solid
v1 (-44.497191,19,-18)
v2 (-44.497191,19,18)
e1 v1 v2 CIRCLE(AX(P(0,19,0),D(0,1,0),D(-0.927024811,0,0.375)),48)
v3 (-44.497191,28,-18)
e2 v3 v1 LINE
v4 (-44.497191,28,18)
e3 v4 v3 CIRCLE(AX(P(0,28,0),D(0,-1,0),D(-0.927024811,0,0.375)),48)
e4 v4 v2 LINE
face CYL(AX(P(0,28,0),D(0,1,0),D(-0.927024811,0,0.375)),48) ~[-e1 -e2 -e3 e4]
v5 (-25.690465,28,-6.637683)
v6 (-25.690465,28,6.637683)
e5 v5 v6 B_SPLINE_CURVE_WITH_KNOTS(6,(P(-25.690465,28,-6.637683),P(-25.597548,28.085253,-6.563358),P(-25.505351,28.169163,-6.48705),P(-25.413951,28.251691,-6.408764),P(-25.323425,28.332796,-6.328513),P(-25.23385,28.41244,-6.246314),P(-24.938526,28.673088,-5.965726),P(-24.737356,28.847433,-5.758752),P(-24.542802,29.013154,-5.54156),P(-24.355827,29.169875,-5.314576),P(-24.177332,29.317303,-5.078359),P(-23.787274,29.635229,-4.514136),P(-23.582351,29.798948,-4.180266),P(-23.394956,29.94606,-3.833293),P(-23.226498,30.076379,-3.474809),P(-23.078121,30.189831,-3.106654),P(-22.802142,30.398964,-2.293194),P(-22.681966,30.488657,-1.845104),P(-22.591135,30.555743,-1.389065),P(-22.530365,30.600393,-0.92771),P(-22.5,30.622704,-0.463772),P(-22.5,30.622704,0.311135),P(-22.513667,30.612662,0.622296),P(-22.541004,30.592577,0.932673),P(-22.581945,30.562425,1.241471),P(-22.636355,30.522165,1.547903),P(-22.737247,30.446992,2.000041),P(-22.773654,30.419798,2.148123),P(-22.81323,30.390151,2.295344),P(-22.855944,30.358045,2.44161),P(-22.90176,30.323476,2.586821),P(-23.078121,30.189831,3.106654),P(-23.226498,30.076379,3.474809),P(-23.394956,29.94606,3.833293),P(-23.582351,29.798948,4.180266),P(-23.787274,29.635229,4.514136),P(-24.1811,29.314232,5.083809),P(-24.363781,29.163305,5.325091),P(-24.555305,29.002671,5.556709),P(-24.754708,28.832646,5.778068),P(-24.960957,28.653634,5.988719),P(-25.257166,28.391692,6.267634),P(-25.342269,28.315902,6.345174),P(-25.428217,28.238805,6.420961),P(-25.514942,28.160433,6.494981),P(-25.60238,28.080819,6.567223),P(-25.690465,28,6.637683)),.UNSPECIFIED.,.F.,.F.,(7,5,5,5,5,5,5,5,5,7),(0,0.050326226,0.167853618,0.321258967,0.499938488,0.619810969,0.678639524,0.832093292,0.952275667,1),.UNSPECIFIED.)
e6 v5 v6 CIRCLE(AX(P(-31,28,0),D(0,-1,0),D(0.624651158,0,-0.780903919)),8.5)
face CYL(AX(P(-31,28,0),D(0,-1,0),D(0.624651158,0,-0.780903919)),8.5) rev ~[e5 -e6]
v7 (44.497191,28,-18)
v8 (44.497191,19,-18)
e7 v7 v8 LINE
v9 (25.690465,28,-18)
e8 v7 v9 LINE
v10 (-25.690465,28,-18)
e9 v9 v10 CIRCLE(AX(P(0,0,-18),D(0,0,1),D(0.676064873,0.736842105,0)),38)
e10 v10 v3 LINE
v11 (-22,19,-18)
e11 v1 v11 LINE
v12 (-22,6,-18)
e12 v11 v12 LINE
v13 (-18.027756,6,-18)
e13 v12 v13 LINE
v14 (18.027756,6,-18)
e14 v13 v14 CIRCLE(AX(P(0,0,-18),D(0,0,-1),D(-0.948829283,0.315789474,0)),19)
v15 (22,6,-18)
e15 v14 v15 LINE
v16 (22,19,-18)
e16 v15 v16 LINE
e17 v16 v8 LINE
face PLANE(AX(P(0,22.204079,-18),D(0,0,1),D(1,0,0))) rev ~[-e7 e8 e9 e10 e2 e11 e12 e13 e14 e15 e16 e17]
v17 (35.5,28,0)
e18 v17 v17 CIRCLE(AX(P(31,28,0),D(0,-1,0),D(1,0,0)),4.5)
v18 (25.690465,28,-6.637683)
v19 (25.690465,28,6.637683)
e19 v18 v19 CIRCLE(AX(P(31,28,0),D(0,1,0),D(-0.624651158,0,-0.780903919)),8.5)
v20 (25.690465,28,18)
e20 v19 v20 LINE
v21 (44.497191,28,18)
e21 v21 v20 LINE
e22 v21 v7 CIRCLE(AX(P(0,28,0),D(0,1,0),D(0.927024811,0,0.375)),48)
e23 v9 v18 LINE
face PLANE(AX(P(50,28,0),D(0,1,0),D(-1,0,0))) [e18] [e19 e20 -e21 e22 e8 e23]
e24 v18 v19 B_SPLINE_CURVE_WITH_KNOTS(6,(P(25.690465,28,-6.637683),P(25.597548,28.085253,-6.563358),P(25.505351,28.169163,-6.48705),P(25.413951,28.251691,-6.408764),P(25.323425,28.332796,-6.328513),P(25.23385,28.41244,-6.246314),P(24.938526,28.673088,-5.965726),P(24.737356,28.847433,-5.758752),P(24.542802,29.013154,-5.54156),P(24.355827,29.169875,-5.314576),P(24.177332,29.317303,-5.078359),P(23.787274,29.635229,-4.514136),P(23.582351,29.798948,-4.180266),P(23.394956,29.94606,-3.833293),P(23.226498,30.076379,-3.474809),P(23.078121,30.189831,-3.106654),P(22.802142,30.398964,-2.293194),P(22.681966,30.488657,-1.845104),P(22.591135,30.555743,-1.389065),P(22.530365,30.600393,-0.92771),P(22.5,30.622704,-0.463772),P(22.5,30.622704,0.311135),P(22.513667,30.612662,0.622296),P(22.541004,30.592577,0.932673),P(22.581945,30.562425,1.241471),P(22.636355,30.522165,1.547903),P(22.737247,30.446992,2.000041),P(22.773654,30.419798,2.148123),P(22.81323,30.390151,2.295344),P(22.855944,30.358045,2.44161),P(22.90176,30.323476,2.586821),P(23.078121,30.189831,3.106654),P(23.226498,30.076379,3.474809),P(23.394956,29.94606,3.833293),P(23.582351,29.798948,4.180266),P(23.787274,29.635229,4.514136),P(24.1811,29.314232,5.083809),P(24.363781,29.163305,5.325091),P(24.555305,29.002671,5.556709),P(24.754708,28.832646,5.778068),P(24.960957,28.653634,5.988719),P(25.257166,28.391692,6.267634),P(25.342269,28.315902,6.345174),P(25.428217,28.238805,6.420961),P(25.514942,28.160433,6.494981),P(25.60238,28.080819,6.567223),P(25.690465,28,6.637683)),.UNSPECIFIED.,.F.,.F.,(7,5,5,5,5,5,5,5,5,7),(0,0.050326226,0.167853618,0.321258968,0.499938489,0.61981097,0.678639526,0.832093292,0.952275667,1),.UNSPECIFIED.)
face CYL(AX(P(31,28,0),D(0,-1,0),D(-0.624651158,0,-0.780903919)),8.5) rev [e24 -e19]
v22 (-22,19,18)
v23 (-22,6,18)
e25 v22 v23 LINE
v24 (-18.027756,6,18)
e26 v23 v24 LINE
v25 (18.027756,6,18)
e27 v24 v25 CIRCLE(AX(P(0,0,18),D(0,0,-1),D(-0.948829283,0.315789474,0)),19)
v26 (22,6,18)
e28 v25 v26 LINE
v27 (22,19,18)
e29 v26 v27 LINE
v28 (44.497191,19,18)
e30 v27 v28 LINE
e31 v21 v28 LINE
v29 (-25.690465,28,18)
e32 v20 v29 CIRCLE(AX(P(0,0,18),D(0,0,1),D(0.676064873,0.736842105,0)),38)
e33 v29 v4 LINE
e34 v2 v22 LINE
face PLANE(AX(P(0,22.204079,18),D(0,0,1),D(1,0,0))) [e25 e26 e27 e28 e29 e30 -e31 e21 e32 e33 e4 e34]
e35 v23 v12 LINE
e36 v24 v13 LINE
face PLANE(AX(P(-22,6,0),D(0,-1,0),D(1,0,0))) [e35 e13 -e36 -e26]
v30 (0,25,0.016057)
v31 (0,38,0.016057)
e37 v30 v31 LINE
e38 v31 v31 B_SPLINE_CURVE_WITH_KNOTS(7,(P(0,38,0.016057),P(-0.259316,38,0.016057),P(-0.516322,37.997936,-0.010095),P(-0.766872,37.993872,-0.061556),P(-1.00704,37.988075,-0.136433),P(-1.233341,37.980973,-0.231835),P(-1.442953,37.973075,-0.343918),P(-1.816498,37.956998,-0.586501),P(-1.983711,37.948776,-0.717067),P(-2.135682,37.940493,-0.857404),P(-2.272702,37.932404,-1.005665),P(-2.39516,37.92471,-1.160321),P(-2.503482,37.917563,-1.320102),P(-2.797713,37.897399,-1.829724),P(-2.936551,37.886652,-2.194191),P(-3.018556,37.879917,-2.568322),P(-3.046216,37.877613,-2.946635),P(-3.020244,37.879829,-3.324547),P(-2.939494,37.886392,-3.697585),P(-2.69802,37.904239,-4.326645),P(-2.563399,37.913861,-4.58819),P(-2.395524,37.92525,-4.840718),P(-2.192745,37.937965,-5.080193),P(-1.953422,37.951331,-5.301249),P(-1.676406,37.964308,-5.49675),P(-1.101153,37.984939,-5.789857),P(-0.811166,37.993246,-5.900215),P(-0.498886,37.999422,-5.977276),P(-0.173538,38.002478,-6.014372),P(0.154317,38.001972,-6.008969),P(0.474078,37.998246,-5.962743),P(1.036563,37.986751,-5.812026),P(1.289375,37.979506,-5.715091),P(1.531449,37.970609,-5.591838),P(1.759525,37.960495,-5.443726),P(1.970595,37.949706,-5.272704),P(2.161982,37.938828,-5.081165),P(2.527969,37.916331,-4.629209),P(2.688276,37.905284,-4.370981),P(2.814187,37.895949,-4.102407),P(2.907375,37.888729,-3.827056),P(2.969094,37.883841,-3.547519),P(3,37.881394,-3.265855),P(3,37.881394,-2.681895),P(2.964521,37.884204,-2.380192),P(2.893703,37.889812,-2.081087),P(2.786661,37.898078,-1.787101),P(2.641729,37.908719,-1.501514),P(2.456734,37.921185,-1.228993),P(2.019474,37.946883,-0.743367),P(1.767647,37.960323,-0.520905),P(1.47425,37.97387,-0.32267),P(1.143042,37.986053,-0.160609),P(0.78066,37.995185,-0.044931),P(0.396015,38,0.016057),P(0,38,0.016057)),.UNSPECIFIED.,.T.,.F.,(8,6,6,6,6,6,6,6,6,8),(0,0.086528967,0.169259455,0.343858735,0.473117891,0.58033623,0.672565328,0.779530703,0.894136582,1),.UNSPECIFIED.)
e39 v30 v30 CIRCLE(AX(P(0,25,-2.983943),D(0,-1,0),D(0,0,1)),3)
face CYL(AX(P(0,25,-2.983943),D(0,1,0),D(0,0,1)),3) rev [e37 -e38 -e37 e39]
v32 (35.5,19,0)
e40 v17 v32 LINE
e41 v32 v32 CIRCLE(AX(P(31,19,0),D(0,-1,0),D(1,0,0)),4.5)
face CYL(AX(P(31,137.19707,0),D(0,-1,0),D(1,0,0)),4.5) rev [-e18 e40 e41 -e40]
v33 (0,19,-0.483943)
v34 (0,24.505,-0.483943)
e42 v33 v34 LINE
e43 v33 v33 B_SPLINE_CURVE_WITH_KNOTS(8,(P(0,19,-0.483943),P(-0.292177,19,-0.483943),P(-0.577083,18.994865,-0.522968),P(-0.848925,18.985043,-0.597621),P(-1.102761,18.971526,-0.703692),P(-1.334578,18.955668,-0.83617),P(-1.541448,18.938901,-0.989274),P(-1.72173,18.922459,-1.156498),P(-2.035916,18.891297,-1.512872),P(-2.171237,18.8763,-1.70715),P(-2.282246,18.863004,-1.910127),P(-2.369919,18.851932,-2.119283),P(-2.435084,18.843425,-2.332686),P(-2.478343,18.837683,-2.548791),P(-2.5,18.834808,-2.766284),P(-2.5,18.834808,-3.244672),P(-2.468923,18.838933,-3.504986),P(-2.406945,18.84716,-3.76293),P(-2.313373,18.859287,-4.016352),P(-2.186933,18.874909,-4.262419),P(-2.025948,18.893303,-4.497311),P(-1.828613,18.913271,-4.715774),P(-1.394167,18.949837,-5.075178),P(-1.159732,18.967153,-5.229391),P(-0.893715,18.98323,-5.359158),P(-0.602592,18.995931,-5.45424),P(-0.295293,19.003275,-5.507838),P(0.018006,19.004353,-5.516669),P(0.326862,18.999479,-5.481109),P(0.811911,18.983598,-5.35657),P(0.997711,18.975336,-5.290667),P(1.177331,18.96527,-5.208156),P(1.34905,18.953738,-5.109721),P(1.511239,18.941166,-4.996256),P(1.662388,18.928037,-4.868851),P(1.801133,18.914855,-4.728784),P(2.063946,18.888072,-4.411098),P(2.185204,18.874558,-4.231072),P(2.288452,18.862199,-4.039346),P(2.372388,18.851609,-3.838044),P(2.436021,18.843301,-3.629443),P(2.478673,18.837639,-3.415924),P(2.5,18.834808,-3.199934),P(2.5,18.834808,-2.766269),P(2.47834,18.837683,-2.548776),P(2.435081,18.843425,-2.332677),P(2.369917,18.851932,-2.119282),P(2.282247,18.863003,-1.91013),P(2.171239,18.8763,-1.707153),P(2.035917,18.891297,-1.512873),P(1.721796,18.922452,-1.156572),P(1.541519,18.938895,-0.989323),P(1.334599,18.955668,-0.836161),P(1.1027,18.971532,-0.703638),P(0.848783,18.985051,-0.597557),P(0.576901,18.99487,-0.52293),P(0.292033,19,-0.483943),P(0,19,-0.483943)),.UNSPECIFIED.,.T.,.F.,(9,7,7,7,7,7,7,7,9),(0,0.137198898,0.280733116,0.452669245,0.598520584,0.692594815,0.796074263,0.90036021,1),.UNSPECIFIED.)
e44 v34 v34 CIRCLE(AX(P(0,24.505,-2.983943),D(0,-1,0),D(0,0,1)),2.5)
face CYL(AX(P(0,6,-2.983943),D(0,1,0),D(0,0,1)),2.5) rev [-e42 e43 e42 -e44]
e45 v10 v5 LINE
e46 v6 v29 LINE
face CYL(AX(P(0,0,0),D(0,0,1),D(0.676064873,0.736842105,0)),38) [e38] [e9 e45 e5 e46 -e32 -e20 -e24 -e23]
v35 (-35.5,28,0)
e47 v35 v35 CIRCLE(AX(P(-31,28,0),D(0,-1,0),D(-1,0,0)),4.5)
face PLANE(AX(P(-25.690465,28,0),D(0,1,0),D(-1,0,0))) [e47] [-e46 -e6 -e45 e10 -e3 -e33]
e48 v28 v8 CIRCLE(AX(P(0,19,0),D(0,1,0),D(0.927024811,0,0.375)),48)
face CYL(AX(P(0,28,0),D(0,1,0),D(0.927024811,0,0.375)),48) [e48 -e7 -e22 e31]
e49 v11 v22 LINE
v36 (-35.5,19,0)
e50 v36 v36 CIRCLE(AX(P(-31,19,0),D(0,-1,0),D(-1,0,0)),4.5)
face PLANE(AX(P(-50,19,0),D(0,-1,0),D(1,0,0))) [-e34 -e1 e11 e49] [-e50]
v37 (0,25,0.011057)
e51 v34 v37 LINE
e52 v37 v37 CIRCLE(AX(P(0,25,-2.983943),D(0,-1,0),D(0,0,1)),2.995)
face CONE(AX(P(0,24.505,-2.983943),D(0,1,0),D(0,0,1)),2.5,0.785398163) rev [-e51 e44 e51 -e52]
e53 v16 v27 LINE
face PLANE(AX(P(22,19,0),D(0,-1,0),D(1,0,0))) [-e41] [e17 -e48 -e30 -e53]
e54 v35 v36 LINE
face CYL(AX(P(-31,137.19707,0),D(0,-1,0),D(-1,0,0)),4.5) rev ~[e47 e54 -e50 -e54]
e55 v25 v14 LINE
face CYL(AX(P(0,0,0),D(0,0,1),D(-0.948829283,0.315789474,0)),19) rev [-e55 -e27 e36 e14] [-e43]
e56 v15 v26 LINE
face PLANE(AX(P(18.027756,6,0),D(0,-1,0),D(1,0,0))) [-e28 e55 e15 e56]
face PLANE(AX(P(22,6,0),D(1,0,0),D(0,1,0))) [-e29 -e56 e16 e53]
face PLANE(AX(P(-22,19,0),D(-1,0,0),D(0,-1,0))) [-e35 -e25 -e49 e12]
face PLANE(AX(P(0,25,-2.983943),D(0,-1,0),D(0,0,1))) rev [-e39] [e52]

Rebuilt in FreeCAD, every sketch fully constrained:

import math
import FreeCAD as App
import Part
import Sketcher
Q = App.Units.Quantity


def add_polygon(sketch, points):
    """Adds a closed chain of lines whose ends are joined by coincident constraints."""
    first, n = sketch.GeometryCount, len(points)
    for a, b in zip(points, points[1:] + points[:1]):
        sketch.addGeometry(Part.LineSegment(App.Vector(*a, 0), App.Vector(*b, 0)), False)
    for i in range(n):
        sketch.addConstraint(Sketcher.Constraint("Coincident", first + i, 2, first + (i + 1) % n, 1))

doc = App.newDocument("Part")
body = doc.addObject("PartDesign::Body", "Body")

# Sketch on XY plane
sketch1 = body.newObject("Sketcher::SketchObject", "Sketch")
sketch1.AttachmentSupport = (doc.getObject("XY_Plane"), [""])
sketch1.MapMode = "FlatFace"
sketch1.addGeometry([
    Part.LineSegment(App.Vector(18, 6, 0), App.Vector(22, 6, 0)),  # 0
    Part.LineSegment(App.Vector(22, 6, 0), App.Vector(22, 19, 0)),  # 1
    Part.LineSegment(App.Vector(22, 19, 0), App.Vector(50, 19, 0)),  # 2
    Part.LineSegment(App.Vector(50, 19, 0), App.Vector(50, 28, 0)),  # 3
    Part.LineSegment(App.Vector(50, 28, 0), App.Vector(25.7, 28, 0)),  # 4
    Part.ArcOfCircle(Part.Circle(App.Vector(0, 0, 0), App.Vector(0, 0, 1), 38), math.radians(47), math.radians(133)),  # 5
    Part.LineSegment(App.Vector(-25.7, 28, 0), App.Vector(-50, 28, 0)),  # 6
    Part.LineSegment(App.Vector(-50, 28, 0), App.Vector(-50, 19, 0)),  # 7
    Part.LineSegment(App.Vector(-50, 19, 0), App.Vector(-22, 19, 0)),  # 8
    Part.LineSegment(App.Vector(-22, 19, 0), App.Vector(-22, 6, 0)),  # 9
    Part.LineSegment(App.Vector(-22, 6, 0), App.Vector(-18, 6, 0)),  # 10
    Part.ArcOfCircle(Part.Circle(App.Vector(0, 0, 0), App.Vector(0, 0, 1), 19), math.radians(18), math.radians(162)),  # 11
], False)
sketch1.addConstraint([
    Sketcher.Constraint("Coincident", 0, 2, 1, 1),
    Sketcher.Constraint("Coincident", 1, 2, 2, 1),
    Sketcher.Constraint("Coincident", 2, 2, 3, 1),
    Sketcher.Constraint("Coincident", 3, 2, 4, 1),
    Sketcher.Constraint("Coincident", 4, 2, 5, 1),
    Sketcher.Constraint("Coincident", 5, 2, 6, 1),
    Sketcher.Constraint("Coincident", 6, 2, 7, 1),
    Sketcher.Constraint("Coincident", 7, 2, 8, 1),
    Sketcher.Constraint("Coincident", 8, 2, 9, 1),
    Sketcher.Constraint("Coincident", 9, 2, 10, 1),
    Sketcher.Constraint("Coincident", 10, 2, 11, 2),
    Sketcher.Constraint("Coincident", 11, 1, 0, 1),
    Sketcher.Constraint("Horizontal", 0),
    Sketcher.Constraint("Vertical", 1),
    Sketcher.Constraint("Horizontal", 2),
    Sketcher.Constraint("Vertical", 3),
    Sketcher.Constraint("Horizontal", 4),
    Sketcher.Constraint("Horizontal", 6),
    Sketcher.Constraint("Vertical", 7),
    Sketcher.Constraint("Horizontal", 8),
    Sketcher.Constraint("Vertical", 9),
    Sketcher.Constraint("Horizontal", 10),
    Sketcher.Constraint("Coincident", 5, 3, -1, 1),
    Sketcher.Constraint("Coincident", 11, 3, -1, 1),
    Sketcher.Constraint("Symmetric", 3, 2, 6, 2, -2),
    Sketcher.Constraint("Symmetric", 1, 2, 8, 2, -2),
    Sketcher.Constraint("Horizontal", 0, 2, 9, 2),
    Sketcher.Constraint("Radius", 5, Q("38 mm")),
    Sketcher.Constraint("Radius", 11, Q("19 mm")),
    Sketcher.Constraint("DistanceX", 2, 1, 2, 2, Q("28 mm")),
    Sketcher.Constraint("DistanceY", 1, 1, 1, 2, Q("13 mm")),
    Sketcher.Constraint("DistanceY", 3, 1, 3, 2, Q("9 mm")),
    Sketcher.Constraint("DistanceX", -1, 1, 0, 2, Q("22 mm")),
    Sketcher.Constraint("DistanceY", -1, 1, 0, 2, Q("6 mm")),
])
pad1 = body.newObject("PartDesign::Pad", "Pad")
pad1.Profile = sketch1
pad1.Length = 36
pad1.Midplane = True

# Sketch on XZ plane
sketch2 = body.newObject("Sketcher::SketchObject", "Sketch001")
sketch2.AttachmentSupport = (doc.getObject("XZ_Plane"), [""])
sketch2.MapMode = "FlatFace"
sketch2.AttachmentOffset = App.Placement(App.Vector(0, 0, -28), App.Rotation())
sketch2.addGeometry([
    Part.LineSegment(App.Vector(-44, -18, 0), App.Vector(-50, -18, 0)),
    Part.LineSegment(App.Vector(-50, -18, 0), App.Vector(-50, 18, 0)),
    Part.LineSegment(App.Vector(-50, 18, 0), App.Vector(-44, 18, 0)),
    Part.ArcOfCircle(Part.Circle(App.Vector(0, 0, 0), App.Vector(0, 0, 1), 48), math.radians(158), math.radians(202)),
], False)
sketch2.addConstraint([
    Sketcher.Constraint("Coincident", 0, 2, 1, 1),
    Sketcher.Constraint("Coincident", 1, 2, 2, 1),
    Sketcher.Constraint("Coincident", 2, 2, 3, 1),
    Sketcher.Constraint("Coincident", 3, 2, 0, 1),
    Sketcher.Constraint("Horizontal", 0),
    Sketcher.Constraint("Vertical", 1),
    Sketcher.Constraint("Horizontal", 2),
    Sketcher.Constraint("Coincident", 3, 3, -1, 1),
    Sketcher.Constraint("Vertical", 2, 2, 3, 2),
    Sketcher.Constraint("Radius", 3, Q("48 mm")),
    Sketcher.Constraint("DistanceY", 1, 1, 1, 2, Q("36 mm")),
    Sketcher.Constraint("DistanceX", 0, 2, -1, 1, Q("50 mm")),
])
pocket1 = body.newObject("PartDesign::Pocket", "Pocket")
pocket1.Profile = sketch2
pocket1.Type = "ThroughAll"
pocket1.Reversed = True

# Sketch on XZ plane
sketch3 = body.newObject("Sketcher::SketchObject", "Sketch002")
sketch3.AttachmentSupport = (doc.getObject("XZ_Plane"), [""])
sketch3.MapMode = "FlatFace"
sketch3.AttachmentOffset = App.Placement(App.Vector(0, 0, -28), App.Rotation())
sketch3.addGeometry(Part.Circle(App.Vector(-31, 0, 0), App.Vector(0, 0, 1), 4.5), False)
sketch3.addConstraint([
    Sketcher.Constraint("PointOnObject", 0, 3, -1),
    Sketcher.Constraint("Diameter", 0, Q("9 mm")),
    Sketcher.Constraint("DistanceX", 0, 3, -1, 1, Q("31 mm")),
])
doc.recompute()
hole = body.newObject("PartDesign::Hole", "Hole")
hole.Profile = sketch3
hole.ThreadType = "None"
hole.Diameter = 9
hole.DepthType = "ThroughAll"
hole.Reversed = True

# Sketch on XZ plane
sketch4 = body.newObject("Sketcher::SketchObject", "Sketch003")
sketch4.AttachmentSupport = (doc.getObject("XZ_Plane"), [""])
sketch4.MapMode = "FlatFace"
sketch4.AttachmentOffset = App.Placement(App.Vector(0, 0, -28), App.Rotation())
sketch4.addGeometry([
    Part.LineSegment(App.Vector(-26, -7, 0), App.Vector(-26, 7, 0)),
    Part.ArcOfCircle(Part.Circle(App.Vector(-31, 0, 0), App.Vector(0, 0, 1), 8), math.radians(-51), math.radians(51)),
], False)
sketch4.addConstraint([
    Sketcher.Constraint("Coincident", 0, 1, 1, 1),
    Sketcher.Constraint("Coincident", 1, 2, 0, 2),
    Sketcher.Constraint("Vertical", 0),
    Sketcher.Constraint("PointOnObject", 1, 3, -1),
    Sketcher.Constraint("Radius", 1, Q("8.5 mm")),
    Sketcher.Constraint("DistanceX", 1, 3, -1, 1, Q("31 mm")),
    Sketcher.Constraint("DistanceY", 0, 1, 0, 2, Q("13.275367 mm")),
])
pocket2 = body.newObject("PartDesign::Pocket", "Pocket001")
pocket2.Profile = sketch4
pocket2.Length = 36

# Sketch on YZ plane
sketch5 = body.newObject("Sketcher::SketchObject", "Sketch004")
sketch5.AttachmentSupport = (doc.getObject("YZ_Plane"), [""])
sketch5.MapMode = "FlatFace"
add_polygon(sketch5, [(6, -2.984), (38, -2.984), (38, 0.016), (25, 0.016), (25, 0.011), (24.505, -0.484), (6, -0.484)])  # lines 0-6
sketch5.addGeometry(Part.LineSegment(App.Vector(38, -2.984, 0), App.Vector(6, -2.984, 0)), True)  # axis
sketch5.addConstraint([
    Sketcher.Constraint("Horizontal", 0),
    Sketcher.Constraint("Vertical", 1),
    Sketcher.Constraint("Horizontal", 2),
    Sketcher.Constraint("Vertical", 3),
    Sketcher.Constraint("Horizontal", 5),
    Sketcher.Constraint("Vertical", 6),
    Sketcher.Constraint("Horizontal", 7),
    Sketcher.Constraint("Coincident", 7, 1, 0, 2),
    Sketcher.Constraint("Vertical", 5, 2, 7, 2),
    Sketcher.Constraint("DistanceX", 0, 1, 0, 2, Q("32 mm")),
    Sketcher.Constraint("DistanceX", 2, 2, 2, 1, Q("13 mm")),
    Sketcher.Constraint("DistanceY", 1, 1, 1, 2, Q("3 mm")),
    Sketcher.Constraint("Angle", 4, Q("-135 deg")),
    Sketcher.Constraint("DistanceY", 6, 2, 6, 1, Q("2.5 mm")),
    Sketcher.Constraint("DistanceX", -1, 1, 0, 2, Q("38 mm")),
    Sketcher.Constraint("DistanceX", 5, 2, 5, 1, Q("18.505 mm")),
    Sketcher.Constraint("DistanceY", 0, 2, -1, 1, Q("2.983943 mm")),
])
groove = body.newObject("PartDesign::Groove", "Groove")
groove.Profile = sketch5
groove.ReferenceAxis = (sketch5, ["Axis0"])
groove.Angle = 360
doc.recompute()

mirrored = body.newObject("PartDesign::Mirrored", "Mirrored")
mirrored.Originals = [pocket1, hole, pocket2]
mirrored.MirrorPlane = (doc.getObject("YZ_Plane"), [""])
body.Tip = mirrored

doc.recompute()
